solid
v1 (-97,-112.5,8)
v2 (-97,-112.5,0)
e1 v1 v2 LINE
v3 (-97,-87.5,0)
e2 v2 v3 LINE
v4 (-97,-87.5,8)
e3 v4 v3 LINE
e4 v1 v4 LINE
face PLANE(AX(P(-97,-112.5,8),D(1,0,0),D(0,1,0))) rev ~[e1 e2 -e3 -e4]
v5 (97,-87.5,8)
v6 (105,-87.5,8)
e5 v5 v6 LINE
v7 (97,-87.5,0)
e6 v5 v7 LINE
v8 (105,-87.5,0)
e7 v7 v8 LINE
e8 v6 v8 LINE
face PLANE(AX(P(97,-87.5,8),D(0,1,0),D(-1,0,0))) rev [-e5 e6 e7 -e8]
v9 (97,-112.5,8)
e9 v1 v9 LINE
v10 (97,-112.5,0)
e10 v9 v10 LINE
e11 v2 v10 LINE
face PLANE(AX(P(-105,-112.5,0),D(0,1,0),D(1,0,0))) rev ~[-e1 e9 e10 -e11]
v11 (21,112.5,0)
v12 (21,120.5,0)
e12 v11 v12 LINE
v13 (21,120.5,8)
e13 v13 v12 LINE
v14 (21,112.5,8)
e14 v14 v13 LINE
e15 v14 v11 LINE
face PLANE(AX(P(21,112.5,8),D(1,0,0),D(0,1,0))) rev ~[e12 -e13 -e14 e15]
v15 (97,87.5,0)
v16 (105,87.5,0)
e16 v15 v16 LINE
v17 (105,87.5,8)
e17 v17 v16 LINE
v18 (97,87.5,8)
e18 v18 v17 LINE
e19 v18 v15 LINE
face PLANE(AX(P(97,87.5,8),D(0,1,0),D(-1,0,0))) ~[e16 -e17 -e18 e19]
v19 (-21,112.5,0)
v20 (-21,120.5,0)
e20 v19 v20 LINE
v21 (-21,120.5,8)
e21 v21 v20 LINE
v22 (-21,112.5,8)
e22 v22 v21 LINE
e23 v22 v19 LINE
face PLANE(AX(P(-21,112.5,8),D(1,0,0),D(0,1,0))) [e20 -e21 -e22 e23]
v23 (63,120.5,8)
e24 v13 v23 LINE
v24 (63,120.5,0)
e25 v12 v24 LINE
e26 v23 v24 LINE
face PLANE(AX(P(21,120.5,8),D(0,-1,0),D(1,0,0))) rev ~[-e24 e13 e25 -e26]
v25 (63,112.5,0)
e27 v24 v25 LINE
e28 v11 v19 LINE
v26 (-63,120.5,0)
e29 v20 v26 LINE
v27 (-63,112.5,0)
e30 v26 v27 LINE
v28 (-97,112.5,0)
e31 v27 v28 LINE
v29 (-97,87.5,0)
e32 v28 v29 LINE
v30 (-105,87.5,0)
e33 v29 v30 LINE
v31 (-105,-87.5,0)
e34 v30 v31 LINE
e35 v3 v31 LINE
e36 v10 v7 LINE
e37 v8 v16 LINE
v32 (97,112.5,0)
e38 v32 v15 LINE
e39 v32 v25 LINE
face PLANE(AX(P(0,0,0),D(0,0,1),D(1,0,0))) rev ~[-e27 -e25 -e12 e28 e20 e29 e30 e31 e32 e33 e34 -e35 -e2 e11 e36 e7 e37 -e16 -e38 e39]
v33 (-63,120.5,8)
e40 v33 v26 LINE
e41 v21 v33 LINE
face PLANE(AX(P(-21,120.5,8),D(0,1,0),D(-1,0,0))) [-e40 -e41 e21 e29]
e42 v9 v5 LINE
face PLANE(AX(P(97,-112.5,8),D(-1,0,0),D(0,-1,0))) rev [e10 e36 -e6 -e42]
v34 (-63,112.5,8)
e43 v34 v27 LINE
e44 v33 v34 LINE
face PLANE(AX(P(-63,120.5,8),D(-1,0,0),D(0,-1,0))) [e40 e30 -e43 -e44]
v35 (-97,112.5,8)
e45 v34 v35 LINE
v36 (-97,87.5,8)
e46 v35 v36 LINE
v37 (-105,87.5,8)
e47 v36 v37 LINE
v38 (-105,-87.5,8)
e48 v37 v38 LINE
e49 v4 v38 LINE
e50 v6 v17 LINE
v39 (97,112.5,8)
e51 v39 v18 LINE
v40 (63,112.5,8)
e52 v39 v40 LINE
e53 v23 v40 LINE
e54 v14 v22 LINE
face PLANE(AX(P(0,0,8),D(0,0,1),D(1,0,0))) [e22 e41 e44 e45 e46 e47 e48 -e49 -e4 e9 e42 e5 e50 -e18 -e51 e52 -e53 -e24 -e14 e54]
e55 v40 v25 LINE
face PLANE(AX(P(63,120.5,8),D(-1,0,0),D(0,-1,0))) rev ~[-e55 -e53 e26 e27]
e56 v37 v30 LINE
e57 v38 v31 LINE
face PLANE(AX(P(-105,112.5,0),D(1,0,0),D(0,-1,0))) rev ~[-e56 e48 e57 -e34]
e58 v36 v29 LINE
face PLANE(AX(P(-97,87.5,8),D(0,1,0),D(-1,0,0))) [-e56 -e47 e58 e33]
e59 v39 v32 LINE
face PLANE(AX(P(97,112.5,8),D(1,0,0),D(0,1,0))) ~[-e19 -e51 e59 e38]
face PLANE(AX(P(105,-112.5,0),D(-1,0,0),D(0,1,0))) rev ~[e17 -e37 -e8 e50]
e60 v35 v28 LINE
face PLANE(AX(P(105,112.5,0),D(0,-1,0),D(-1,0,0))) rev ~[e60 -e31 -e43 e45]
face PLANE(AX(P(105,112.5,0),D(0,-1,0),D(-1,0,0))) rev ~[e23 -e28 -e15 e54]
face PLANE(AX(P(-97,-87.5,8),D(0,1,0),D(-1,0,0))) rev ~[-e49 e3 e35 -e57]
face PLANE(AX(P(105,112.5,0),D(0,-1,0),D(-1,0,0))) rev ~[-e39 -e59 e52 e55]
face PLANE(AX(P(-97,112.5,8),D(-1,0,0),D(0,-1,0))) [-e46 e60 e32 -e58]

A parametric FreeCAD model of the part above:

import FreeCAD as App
import Part
import Sketcher
from FreeCAD import Vector
Q = App.Units.Quantity

doc = App.newDocument("Part")
params = doc.addObject("Spreadsheet::Sheet", "Params")
for row, (alias, value) in enumerate([
    ("sketch1_width", "210 mm"),
    ("sketch1_height", "225 mm"),
    ("pad1_length", "8 mm"),
    ("sketch2_height", "8 mm"),
    ("sketch2_width", "42 mm"),
    ("pad2_length", "8 mm"),
    ("sketch3_width", "8 mm"),
    ("sketch3_height", "25 mm"),
    ("pocket1_length", "8 mm"),
], start=1):
    params.set(f"A{row}", alias)
    params.set(f"B{row}", "=" + value)
    params.setAlias(f"B{row}", alias)

body = doc.addObject("PartDesign::Body", "Body")

# Sketch on XY plane
sketch1 = body.newObject("Sketcher::SketchObject", "Sketch")
sketch1.AttachmentSupport = (doc.getObject("XY_Plane"), [""])
sketch1.MapMode = "FlatFace"
sketch1.addGeometry([
    Part.LineSegment(Vector(-105, 112.5, 0), Vector(-105, -112.5, 0)),
    Part.LineSegment(Vector(-105, -112.5, 0), Vector(105, -112.5, 0)),
    Part.LineSegment(Vector(105, -112.5, 0), Vector(105, 112.5, 0)),
    Part.LineSegment(Vector(105, 112.5, 0), Vector(-105, 112.5, 0)),
], False)
sketch1.addConstraint([
    Sketcher.Constraint("Coincident", 0, 2, 1, 1),
    Sketcher.Constraint("Coincident", 1, 2, 2, 1),
    Sketcher.Constraint("Coincident", 2, 2, 3, 1),
    Sketcher.Constraint("Coincident", 3, 2, 0, 1),
    Sketcher.Constraint("Vertical", 0),
    Sketcher.Constraint("Horizontal", 1),
    Sketcher.Constraint("Vertical", 2),
    Sketcher.Constraint("Horizontal", 3),
    Sketcher.Constraint("Symmetric", 0, 2, 2, 2, -1, 1),
    Sketcher.Constraint("DistanceX", 1, 1, 1, 2, Q("210 mm")),
    Sketcher.Constraint("DistanceY", 0, 2, 0, 1, Q("225 mm")),
])
sketch1.setExpression("Constraints[9]", "Params.sketch1_width")
sketch1.setExpression("Constraints[10]", "Params.sketch1_height")
pad1 = body.newObject("PartDesign::Pad", "Pad")
pad1.Profile = sketch1
pad1.setExpression("Length", "Params.pad1_length")

# Sketch on XY plane
sketch2 = body.newObject("Sketcher::SketchObject", "Sketch001")
sketch2.AttachmentSupport = (doc.getObject("XY_Plane"), [""])
sketch2.MapMode = "FlatFace"
sketch2.AttachmentOffset = App.Placement(Vector(0, 0, 8), App.Rotation())
sketch2.addGeometry([
    Part.LineSegment(Vector(-63, 112.5, 0), Vector(-21, 112.5, 0)),  # 0
    Part.LineSegment(Vector(-21, 112.5, 0), Vector(-21, 120.5, 0)),  # 1
    Part.LineSegment(Vector(-21, 120.5, 0), Vector(-63, 120.5, 0)),  # 2
    Part.LineSegment(Vector(-63, 120.5, 0), Vector(-63, 112.5, 0)),  # 3
    Part.LineSegment(Vector(21, 112.5, 0), Vector(63, 112.5, 0)),  # 4
    Part.LineSegment(Vector(63, 112.5, 0), Vector(63, 120.5, 0)),  # 5
    Part.LineSegment(Vector(63, 120.5, 0), Vector(21, 120.5, 0)),  # 6
    Part.LineSegment(Vector(21, 120.5, 0), Vector(21, 112.5, 0)),  # 7
], False)
sketch2.addConstraint([
    Sketcher.Constraint("Coincident", 0, 2, 1, 1),
    Sketcher.Constraint("Coincident", 1, 2, 2, 1),
    Sketcher.Constraint("Coincident", 2, 2, 3, 1),
    Sketcher.Constraint("Coincident", 3, 2, 0, 1),
    Sketcher.Constraint("Coincident", 4, 2, 5, 1),
    Sketcher.Constraint("Coincident", 5, 2, 6, 1),
    Sketcher.Constraint("Coincident", 6, 2, 7, 1),
    Sketcher.Constraint("Coincident", 7, 2, 4, 1),
    Sketcher.Constraint("Horizontal", 0),
    Sketcher.Constraint("Vertical", 1),
    Sketcher.Constraint("Horizontal", 2),
    Sketcher.Constraint("Vertical", 3),
    Sketcher.Constraint("Horizontal", 4),
    Sketcher.Constraint("Vertical", 5),
    Sketcher.Constraint("Horizontal", 6),
    Sketcher.Constraint("Vertical", 7),
    Sketcher.Constraint("Symmetric", 3, 2, 4, 2, -2),
    Sketcher.Constraint("Symmetric", 1, 2, 6, 2, -2),
    Sketcher.Constraint("DistanceY", 1, 1, 1, 2, Q("8 mm")),
    Sketcher.Constraint("DistanceX", 0, 1, 0, 2, Q("42 mm")),
    Sketcher.Constraint("DistanceX", 0, 2, -1, 1, Q("21 mm")),
    Sketcher.Constraint("DistanceY", -1, 1, 0, 2, Q("112.5 mm")),
])
sketch2.setExpression("Constraints[18]", "Params.sketch2_height")
sketch2.setExpression("Constraints[19]", "Params.sketch2_width")
pad2 = body.newObject("PartDesign::Pad", "Pad001")
pad2.Profile = sketch2
pad2.setExpression("Length", "Params.pad2_length")
pad2.Reversed = True

# Sketch on XY plane
sketch3 = body.newObject("Sketcher::SketchObject", "Sketch002")
sketch3.AttachmentSupport = (doc.getObject("XY_Plane"), [""])
sketch3.MapMode = "FlatFace"
sketch3.AttachmentOffset = App.Placement(Vector(0, 0, 8), App.Rotation())
sketch3.addGeometry([
    Part.LineSegment(Vector(-97, 112.5, 0), Vector(-105, 112.5, 0)),  # 0
    Part.LineSegment(Vector(-105, 112.5, 0), Vector(-105, 87.5, 0)),  # 1
    Part.LineSegment(Vector(-105, 87.5, 0), Vector(-97, 87.5, 0)),  # 2
    Part.LineSegment(Vector(-97, 87.5, 0), Vector(-97, 112.5, 0)),  # 3
    Part.LineSegment(Vector(-97, -87.5, 0), Vector(-105, -87.5, 0)),  # 4
    Part.LineSegment(Vector(-105, -87.5, 0), Vector(-105, -112.5, 0)),  # 5
    Part.LineSegment(Vector(-105, -112.5, 0), Vector(-97, -112.5, 0)),  # 6
    Part.LineSegment(Vector(-97, -112.5, 0), Vector(-97, -87.5, 0)),  # 7
], False)
sketch3.addConstraint([
    Sketcher.Constraint("Coincident", 0, 2, 1, 1),
    Sketcher.Constraint("Coincident", 1, 2, 2, 1),
    Sketcher.Constraint("Coincident", 2, 2, 3, 1),
    Sketcher.Constraint("Coincident", 3, 2, 0, 1),
    Sketcher.Constraint("Coincident", 4, 2, 5, 1),
    Sketcher.Constraint("Coincident", 5, 2, 6, 1),
    Sketcher.Constraint("Coincident", 6, 2, 7, 1),
    Sketcher.Constraint("Coincident", 7, 2, 4, 1),
    Sketcher.Constraint("Horizontal", 0),
    Sketcher.Constraint("Vertical", 1),
    Sketcher.Constraint("Horizontal", 2),
    Sketcher.Constraint("Vertical", 3),
    Sketcher.Constraint("Horizontal", 4),
    Sketcher.Constraint("Vertical", 5),
    Sketcher.Constraint("Horizontal", 6),
    Sketcher.Constraint("Vertical", 7),
    Sketcher.Constraint("Symmetric", 1, 2, 4, 2, -1),
    Sketcher.Constraint("Symmetric", 3, 2, 6, 2, -1),
    Sketcher.Constraint("DistanceX", 0, 2, 0, 1, Q("8 mm")),
    Sketcher.Constraint("DistanceY", 1, 2, 1, 1, Q("25 mm")),
    Sketcher.Constraint("DistanceX", 0, 2, -1, 1, Q("105 mm")),
    Sketcher.Constraint("DistanceY", 4, 2, 1, 2, Q("175 mm")),
])
sketch3.setExpression("Constraints[18]", "Params.sketch3_width")
sketch3.setExpression("Constraints[19]", "Params.sketch3_height")
pocket1 = body.newObject("PartDesign::Pocket", "Pocket")
pocket1.Profile = sketch3
pocket1.setExpression("Length", "Params.pocket1_length")
doc.recompute()

mirrored = body.newObject("PartDesign::Mirrored", "Mirrored")
mirrored.Originals = [pocket1]
mirrored.MirrorPlane = (doc.getObject("YZ_Plane"), [""])
body.Tip = mirrored

doc.recompute()
